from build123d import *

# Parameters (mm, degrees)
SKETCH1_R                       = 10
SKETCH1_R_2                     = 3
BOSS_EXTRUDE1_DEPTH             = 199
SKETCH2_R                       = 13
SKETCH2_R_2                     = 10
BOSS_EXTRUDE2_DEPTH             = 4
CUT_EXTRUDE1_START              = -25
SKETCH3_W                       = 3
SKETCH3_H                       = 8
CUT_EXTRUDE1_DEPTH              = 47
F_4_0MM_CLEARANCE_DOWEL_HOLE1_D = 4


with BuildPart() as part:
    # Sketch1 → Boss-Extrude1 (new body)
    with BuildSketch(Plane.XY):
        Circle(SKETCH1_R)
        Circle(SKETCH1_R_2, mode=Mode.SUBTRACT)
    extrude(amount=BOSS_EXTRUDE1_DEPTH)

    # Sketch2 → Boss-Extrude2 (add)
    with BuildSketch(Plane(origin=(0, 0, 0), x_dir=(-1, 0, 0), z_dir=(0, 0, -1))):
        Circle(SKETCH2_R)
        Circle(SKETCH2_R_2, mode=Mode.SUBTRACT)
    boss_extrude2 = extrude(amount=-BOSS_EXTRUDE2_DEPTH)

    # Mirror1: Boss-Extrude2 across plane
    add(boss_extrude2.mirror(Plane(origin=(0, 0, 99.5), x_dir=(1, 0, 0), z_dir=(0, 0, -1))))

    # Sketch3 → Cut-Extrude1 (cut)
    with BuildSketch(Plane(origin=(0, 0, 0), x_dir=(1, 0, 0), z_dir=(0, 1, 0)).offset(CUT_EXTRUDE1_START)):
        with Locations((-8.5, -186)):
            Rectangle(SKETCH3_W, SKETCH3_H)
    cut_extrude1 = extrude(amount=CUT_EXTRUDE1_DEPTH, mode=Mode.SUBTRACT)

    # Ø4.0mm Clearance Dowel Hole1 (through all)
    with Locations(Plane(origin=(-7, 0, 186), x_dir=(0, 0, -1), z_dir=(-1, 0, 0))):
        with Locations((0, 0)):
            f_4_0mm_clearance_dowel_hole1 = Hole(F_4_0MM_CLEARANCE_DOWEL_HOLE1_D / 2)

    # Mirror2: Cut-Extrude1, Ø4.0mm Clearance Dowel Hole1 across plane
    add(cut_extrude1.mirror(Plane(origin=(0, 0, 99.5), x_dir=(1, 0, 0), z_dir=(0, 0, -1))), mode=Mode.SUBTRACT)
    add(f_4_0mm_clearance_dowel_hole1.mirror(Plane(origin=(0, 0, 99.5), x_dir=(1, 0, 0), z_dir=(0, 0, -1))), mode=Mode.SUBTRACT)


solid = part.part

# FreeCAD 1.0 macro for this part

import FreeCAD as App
import Part
import Sketcher

V = App.Vector
Q = App.Units.Quantity

doc = App.newDocument("Part")
body = doc.addObject("PartDesign::Body", "Body")

# Sketch on XY plane
sketch1 = body.newObject("Sketcher::SketchObject", "Sketch")
sketch1.AttachmentSupport = (doc.getObject("XY_Plane"), [""])
sketch1.MapMode = "FlatFace"
sketch1.addGeometry([
    Part.Circle(V(0, 0, 0), V(0, 0, 1), 10),
    Part.Circle(V(0, 0, 0), V(0, 0, 1), 3),
], False)
sketch1.addConstraint([
    Sketcher.Constraint("Coincident", 0, 3, -1, 1),
    Sketcher.Constraint("Coincident", 1, 3, -1, 1),
    Sketcher.Constraint("Diameter", 0, Q("20 mm")),
    Sketcher.Constraint("Diameter", 1, Q("6 mm")),
])
pad1 = body.newObject("PartDesign::Pad", "Pad")
pad1.Profile = sketch1
pad1.Length = 199

# Sketch on XY plane
sketch2 = body.newObject("Sketcher::SketchObject", "Sketch001")
sketch2.AttachmentSupport = (doc.getObject("XY_Plane"), [""])
sketch2.MapMode = "FlatFace"
sketch2.addGeometry([
    Part.Circle(V(0, 0, 0), V(0, 0, 1), 13),
    Part.Circle(V(0, 0, 0), V(0, 0, 1), 10),
], False)
sketch2.addConstraint([
    Sketcher.Constraint("Coincident", 0, 3, -1, 1),
    Sketcher.Constraint("Coincident", 1, 3, -1, 1),
    Sketcher.Constraint("Diameter", 0, Q("26 mm")),
    Sketcher.Constraint("Diameter", 1, Q("20 mm")),
])
pad2 = body.newObject("PartDesign::Pad", "Pad001")
pad2.Profile = sketch2
pad2.Length = 4
doc.recompute()

datumplane = body.newObject("PartDesign::Plane", "DatumPlane")
datumplane.AttachmentSupport = (doc.getObject("XY_Plane"), [""])
datumplane.MapMode = "FlatFace"
datumplane.AttachmentOffset = App.Placement(V(0, 0, 99.5), App.Rotation())
mirrored = body.newObject("PartDesign::Mirrored", "Mirrored")
mirrored.Originals = [pad2]
mirrored.MirrorPlane = (datumplane, [""])
body.Tip = mirrored

# Sketch on XZ plane
sketch3 = body.newObject("Sketcher::SketchObject", "Sketch002")
sketch3.AttachmentSupport = (doc.getObject("XZ_Plane"), [""])
sketch3.MapMode = "FlatFace"
sketch3.AttachmentOffset = App.Placement(V(0, 0, 25), App.Rotation())
sketch3.addGeometry([
    Part.LineSegment(V(-10, 182, 0), V(-10, 190, 0)),
    Part.LineSegment(V(-10, 190, 0), V(-7, 190, 0)),
    Part.LineSegment(V(-7, 190, 0), V(-7, 182, 0)),
    Part.LineSegment(V(-7, 182, 0), V(-10, 182, 0)),
], False)
sketch3.addConstraint([
    Sketcher.Constraint("Coincident", 0, 2, 1, 1),
    Sketcher.Constraint("Coincident", 1, 2, 2, 1),
    Sketcher.Constraint("Coincident", 2, 2, 3, 1),
    Sketcher.Constraint("Coincident", 3, 2, 0, 1),
    Sketcher.Constraint("Vertical", 0),
    Sketcher.Constraint("Horizontal", 1),
    Sketcher.Constraint("Vertical", 2),
    Sketcher.Constraint("Horizontal", 3),
    Sketcher.Constraint("DistanceX", 1, 1, 1, 2, Q("3 mm")),
    Sketcher.Constraint("DistanceY", 0, 1, 0, 2, Q("8 mm")),
    Sketcher.Constraint("DistanceX", 0, 2, -1, 1, Q("10 mm")),
    Sketcher.Constraint("DistanceY", -1, 1, 0, 2, Q("190 mm")),
])
pocket1 = body.newObject("PartDesign::Pocket", "Pocket")
pocket1.Profile = sketch3
pocket1.Length = 47

# Sketch on YZ plane
sketch4 = body.newObject("Sketcher::SketchObject", "Sketch003")
sketch4.AttachmentSupport = (doc.getObject("YZ_Plane"), [""])
sketch4.MapMode = "FlatFace"
sketch4.AttachmentOffset = App.Placement(V(0, 0, -7), App.Rotation())
sketch4.addGeometry(Part.Circle(V(0, 186, 0), V(0, 0, 1), 2), False)
sketch4.addConstraint([
    Sketcher.Constraint("PointOnObject", 0, 3, -2),
    Sketcher.Constraint("Diameter", 0, Q("4 mm")),
    Sketcher.Constraint("DistanceY", -1, 1, 0, 3, Q("186 mm")),
])
doc.recompute()
hole = body.newObject("PartDesign::Hole", "Hole")
hole.Profile = sketch4
hole.ThreadType = "None"
hole.Diameter = 4
hole.DepthType = "ThroughAll"
hole.Reversed = True
doc.recompute()

datumplane2 = body.newObject("PartDesign::Plane", "DatumPlane001")
datumplane2.AttachmentSupport = (doc.getObject("XY_Plane"), [""])
datumplane2.MapMode = "FlatFace"
datumplane2.AttachmentOffset = App.Placement(V(0, 0, 99.5), App.Rotation())
mirrored2 = body.newObject("PartDesign::Mirrored", "Mirrored001")
mirrored2.Originals = [pocket1, hole]
mirrored2.MirrorPlane = (datumplane2, [""])
body.Tip = mirrored2

doc.recompute()
